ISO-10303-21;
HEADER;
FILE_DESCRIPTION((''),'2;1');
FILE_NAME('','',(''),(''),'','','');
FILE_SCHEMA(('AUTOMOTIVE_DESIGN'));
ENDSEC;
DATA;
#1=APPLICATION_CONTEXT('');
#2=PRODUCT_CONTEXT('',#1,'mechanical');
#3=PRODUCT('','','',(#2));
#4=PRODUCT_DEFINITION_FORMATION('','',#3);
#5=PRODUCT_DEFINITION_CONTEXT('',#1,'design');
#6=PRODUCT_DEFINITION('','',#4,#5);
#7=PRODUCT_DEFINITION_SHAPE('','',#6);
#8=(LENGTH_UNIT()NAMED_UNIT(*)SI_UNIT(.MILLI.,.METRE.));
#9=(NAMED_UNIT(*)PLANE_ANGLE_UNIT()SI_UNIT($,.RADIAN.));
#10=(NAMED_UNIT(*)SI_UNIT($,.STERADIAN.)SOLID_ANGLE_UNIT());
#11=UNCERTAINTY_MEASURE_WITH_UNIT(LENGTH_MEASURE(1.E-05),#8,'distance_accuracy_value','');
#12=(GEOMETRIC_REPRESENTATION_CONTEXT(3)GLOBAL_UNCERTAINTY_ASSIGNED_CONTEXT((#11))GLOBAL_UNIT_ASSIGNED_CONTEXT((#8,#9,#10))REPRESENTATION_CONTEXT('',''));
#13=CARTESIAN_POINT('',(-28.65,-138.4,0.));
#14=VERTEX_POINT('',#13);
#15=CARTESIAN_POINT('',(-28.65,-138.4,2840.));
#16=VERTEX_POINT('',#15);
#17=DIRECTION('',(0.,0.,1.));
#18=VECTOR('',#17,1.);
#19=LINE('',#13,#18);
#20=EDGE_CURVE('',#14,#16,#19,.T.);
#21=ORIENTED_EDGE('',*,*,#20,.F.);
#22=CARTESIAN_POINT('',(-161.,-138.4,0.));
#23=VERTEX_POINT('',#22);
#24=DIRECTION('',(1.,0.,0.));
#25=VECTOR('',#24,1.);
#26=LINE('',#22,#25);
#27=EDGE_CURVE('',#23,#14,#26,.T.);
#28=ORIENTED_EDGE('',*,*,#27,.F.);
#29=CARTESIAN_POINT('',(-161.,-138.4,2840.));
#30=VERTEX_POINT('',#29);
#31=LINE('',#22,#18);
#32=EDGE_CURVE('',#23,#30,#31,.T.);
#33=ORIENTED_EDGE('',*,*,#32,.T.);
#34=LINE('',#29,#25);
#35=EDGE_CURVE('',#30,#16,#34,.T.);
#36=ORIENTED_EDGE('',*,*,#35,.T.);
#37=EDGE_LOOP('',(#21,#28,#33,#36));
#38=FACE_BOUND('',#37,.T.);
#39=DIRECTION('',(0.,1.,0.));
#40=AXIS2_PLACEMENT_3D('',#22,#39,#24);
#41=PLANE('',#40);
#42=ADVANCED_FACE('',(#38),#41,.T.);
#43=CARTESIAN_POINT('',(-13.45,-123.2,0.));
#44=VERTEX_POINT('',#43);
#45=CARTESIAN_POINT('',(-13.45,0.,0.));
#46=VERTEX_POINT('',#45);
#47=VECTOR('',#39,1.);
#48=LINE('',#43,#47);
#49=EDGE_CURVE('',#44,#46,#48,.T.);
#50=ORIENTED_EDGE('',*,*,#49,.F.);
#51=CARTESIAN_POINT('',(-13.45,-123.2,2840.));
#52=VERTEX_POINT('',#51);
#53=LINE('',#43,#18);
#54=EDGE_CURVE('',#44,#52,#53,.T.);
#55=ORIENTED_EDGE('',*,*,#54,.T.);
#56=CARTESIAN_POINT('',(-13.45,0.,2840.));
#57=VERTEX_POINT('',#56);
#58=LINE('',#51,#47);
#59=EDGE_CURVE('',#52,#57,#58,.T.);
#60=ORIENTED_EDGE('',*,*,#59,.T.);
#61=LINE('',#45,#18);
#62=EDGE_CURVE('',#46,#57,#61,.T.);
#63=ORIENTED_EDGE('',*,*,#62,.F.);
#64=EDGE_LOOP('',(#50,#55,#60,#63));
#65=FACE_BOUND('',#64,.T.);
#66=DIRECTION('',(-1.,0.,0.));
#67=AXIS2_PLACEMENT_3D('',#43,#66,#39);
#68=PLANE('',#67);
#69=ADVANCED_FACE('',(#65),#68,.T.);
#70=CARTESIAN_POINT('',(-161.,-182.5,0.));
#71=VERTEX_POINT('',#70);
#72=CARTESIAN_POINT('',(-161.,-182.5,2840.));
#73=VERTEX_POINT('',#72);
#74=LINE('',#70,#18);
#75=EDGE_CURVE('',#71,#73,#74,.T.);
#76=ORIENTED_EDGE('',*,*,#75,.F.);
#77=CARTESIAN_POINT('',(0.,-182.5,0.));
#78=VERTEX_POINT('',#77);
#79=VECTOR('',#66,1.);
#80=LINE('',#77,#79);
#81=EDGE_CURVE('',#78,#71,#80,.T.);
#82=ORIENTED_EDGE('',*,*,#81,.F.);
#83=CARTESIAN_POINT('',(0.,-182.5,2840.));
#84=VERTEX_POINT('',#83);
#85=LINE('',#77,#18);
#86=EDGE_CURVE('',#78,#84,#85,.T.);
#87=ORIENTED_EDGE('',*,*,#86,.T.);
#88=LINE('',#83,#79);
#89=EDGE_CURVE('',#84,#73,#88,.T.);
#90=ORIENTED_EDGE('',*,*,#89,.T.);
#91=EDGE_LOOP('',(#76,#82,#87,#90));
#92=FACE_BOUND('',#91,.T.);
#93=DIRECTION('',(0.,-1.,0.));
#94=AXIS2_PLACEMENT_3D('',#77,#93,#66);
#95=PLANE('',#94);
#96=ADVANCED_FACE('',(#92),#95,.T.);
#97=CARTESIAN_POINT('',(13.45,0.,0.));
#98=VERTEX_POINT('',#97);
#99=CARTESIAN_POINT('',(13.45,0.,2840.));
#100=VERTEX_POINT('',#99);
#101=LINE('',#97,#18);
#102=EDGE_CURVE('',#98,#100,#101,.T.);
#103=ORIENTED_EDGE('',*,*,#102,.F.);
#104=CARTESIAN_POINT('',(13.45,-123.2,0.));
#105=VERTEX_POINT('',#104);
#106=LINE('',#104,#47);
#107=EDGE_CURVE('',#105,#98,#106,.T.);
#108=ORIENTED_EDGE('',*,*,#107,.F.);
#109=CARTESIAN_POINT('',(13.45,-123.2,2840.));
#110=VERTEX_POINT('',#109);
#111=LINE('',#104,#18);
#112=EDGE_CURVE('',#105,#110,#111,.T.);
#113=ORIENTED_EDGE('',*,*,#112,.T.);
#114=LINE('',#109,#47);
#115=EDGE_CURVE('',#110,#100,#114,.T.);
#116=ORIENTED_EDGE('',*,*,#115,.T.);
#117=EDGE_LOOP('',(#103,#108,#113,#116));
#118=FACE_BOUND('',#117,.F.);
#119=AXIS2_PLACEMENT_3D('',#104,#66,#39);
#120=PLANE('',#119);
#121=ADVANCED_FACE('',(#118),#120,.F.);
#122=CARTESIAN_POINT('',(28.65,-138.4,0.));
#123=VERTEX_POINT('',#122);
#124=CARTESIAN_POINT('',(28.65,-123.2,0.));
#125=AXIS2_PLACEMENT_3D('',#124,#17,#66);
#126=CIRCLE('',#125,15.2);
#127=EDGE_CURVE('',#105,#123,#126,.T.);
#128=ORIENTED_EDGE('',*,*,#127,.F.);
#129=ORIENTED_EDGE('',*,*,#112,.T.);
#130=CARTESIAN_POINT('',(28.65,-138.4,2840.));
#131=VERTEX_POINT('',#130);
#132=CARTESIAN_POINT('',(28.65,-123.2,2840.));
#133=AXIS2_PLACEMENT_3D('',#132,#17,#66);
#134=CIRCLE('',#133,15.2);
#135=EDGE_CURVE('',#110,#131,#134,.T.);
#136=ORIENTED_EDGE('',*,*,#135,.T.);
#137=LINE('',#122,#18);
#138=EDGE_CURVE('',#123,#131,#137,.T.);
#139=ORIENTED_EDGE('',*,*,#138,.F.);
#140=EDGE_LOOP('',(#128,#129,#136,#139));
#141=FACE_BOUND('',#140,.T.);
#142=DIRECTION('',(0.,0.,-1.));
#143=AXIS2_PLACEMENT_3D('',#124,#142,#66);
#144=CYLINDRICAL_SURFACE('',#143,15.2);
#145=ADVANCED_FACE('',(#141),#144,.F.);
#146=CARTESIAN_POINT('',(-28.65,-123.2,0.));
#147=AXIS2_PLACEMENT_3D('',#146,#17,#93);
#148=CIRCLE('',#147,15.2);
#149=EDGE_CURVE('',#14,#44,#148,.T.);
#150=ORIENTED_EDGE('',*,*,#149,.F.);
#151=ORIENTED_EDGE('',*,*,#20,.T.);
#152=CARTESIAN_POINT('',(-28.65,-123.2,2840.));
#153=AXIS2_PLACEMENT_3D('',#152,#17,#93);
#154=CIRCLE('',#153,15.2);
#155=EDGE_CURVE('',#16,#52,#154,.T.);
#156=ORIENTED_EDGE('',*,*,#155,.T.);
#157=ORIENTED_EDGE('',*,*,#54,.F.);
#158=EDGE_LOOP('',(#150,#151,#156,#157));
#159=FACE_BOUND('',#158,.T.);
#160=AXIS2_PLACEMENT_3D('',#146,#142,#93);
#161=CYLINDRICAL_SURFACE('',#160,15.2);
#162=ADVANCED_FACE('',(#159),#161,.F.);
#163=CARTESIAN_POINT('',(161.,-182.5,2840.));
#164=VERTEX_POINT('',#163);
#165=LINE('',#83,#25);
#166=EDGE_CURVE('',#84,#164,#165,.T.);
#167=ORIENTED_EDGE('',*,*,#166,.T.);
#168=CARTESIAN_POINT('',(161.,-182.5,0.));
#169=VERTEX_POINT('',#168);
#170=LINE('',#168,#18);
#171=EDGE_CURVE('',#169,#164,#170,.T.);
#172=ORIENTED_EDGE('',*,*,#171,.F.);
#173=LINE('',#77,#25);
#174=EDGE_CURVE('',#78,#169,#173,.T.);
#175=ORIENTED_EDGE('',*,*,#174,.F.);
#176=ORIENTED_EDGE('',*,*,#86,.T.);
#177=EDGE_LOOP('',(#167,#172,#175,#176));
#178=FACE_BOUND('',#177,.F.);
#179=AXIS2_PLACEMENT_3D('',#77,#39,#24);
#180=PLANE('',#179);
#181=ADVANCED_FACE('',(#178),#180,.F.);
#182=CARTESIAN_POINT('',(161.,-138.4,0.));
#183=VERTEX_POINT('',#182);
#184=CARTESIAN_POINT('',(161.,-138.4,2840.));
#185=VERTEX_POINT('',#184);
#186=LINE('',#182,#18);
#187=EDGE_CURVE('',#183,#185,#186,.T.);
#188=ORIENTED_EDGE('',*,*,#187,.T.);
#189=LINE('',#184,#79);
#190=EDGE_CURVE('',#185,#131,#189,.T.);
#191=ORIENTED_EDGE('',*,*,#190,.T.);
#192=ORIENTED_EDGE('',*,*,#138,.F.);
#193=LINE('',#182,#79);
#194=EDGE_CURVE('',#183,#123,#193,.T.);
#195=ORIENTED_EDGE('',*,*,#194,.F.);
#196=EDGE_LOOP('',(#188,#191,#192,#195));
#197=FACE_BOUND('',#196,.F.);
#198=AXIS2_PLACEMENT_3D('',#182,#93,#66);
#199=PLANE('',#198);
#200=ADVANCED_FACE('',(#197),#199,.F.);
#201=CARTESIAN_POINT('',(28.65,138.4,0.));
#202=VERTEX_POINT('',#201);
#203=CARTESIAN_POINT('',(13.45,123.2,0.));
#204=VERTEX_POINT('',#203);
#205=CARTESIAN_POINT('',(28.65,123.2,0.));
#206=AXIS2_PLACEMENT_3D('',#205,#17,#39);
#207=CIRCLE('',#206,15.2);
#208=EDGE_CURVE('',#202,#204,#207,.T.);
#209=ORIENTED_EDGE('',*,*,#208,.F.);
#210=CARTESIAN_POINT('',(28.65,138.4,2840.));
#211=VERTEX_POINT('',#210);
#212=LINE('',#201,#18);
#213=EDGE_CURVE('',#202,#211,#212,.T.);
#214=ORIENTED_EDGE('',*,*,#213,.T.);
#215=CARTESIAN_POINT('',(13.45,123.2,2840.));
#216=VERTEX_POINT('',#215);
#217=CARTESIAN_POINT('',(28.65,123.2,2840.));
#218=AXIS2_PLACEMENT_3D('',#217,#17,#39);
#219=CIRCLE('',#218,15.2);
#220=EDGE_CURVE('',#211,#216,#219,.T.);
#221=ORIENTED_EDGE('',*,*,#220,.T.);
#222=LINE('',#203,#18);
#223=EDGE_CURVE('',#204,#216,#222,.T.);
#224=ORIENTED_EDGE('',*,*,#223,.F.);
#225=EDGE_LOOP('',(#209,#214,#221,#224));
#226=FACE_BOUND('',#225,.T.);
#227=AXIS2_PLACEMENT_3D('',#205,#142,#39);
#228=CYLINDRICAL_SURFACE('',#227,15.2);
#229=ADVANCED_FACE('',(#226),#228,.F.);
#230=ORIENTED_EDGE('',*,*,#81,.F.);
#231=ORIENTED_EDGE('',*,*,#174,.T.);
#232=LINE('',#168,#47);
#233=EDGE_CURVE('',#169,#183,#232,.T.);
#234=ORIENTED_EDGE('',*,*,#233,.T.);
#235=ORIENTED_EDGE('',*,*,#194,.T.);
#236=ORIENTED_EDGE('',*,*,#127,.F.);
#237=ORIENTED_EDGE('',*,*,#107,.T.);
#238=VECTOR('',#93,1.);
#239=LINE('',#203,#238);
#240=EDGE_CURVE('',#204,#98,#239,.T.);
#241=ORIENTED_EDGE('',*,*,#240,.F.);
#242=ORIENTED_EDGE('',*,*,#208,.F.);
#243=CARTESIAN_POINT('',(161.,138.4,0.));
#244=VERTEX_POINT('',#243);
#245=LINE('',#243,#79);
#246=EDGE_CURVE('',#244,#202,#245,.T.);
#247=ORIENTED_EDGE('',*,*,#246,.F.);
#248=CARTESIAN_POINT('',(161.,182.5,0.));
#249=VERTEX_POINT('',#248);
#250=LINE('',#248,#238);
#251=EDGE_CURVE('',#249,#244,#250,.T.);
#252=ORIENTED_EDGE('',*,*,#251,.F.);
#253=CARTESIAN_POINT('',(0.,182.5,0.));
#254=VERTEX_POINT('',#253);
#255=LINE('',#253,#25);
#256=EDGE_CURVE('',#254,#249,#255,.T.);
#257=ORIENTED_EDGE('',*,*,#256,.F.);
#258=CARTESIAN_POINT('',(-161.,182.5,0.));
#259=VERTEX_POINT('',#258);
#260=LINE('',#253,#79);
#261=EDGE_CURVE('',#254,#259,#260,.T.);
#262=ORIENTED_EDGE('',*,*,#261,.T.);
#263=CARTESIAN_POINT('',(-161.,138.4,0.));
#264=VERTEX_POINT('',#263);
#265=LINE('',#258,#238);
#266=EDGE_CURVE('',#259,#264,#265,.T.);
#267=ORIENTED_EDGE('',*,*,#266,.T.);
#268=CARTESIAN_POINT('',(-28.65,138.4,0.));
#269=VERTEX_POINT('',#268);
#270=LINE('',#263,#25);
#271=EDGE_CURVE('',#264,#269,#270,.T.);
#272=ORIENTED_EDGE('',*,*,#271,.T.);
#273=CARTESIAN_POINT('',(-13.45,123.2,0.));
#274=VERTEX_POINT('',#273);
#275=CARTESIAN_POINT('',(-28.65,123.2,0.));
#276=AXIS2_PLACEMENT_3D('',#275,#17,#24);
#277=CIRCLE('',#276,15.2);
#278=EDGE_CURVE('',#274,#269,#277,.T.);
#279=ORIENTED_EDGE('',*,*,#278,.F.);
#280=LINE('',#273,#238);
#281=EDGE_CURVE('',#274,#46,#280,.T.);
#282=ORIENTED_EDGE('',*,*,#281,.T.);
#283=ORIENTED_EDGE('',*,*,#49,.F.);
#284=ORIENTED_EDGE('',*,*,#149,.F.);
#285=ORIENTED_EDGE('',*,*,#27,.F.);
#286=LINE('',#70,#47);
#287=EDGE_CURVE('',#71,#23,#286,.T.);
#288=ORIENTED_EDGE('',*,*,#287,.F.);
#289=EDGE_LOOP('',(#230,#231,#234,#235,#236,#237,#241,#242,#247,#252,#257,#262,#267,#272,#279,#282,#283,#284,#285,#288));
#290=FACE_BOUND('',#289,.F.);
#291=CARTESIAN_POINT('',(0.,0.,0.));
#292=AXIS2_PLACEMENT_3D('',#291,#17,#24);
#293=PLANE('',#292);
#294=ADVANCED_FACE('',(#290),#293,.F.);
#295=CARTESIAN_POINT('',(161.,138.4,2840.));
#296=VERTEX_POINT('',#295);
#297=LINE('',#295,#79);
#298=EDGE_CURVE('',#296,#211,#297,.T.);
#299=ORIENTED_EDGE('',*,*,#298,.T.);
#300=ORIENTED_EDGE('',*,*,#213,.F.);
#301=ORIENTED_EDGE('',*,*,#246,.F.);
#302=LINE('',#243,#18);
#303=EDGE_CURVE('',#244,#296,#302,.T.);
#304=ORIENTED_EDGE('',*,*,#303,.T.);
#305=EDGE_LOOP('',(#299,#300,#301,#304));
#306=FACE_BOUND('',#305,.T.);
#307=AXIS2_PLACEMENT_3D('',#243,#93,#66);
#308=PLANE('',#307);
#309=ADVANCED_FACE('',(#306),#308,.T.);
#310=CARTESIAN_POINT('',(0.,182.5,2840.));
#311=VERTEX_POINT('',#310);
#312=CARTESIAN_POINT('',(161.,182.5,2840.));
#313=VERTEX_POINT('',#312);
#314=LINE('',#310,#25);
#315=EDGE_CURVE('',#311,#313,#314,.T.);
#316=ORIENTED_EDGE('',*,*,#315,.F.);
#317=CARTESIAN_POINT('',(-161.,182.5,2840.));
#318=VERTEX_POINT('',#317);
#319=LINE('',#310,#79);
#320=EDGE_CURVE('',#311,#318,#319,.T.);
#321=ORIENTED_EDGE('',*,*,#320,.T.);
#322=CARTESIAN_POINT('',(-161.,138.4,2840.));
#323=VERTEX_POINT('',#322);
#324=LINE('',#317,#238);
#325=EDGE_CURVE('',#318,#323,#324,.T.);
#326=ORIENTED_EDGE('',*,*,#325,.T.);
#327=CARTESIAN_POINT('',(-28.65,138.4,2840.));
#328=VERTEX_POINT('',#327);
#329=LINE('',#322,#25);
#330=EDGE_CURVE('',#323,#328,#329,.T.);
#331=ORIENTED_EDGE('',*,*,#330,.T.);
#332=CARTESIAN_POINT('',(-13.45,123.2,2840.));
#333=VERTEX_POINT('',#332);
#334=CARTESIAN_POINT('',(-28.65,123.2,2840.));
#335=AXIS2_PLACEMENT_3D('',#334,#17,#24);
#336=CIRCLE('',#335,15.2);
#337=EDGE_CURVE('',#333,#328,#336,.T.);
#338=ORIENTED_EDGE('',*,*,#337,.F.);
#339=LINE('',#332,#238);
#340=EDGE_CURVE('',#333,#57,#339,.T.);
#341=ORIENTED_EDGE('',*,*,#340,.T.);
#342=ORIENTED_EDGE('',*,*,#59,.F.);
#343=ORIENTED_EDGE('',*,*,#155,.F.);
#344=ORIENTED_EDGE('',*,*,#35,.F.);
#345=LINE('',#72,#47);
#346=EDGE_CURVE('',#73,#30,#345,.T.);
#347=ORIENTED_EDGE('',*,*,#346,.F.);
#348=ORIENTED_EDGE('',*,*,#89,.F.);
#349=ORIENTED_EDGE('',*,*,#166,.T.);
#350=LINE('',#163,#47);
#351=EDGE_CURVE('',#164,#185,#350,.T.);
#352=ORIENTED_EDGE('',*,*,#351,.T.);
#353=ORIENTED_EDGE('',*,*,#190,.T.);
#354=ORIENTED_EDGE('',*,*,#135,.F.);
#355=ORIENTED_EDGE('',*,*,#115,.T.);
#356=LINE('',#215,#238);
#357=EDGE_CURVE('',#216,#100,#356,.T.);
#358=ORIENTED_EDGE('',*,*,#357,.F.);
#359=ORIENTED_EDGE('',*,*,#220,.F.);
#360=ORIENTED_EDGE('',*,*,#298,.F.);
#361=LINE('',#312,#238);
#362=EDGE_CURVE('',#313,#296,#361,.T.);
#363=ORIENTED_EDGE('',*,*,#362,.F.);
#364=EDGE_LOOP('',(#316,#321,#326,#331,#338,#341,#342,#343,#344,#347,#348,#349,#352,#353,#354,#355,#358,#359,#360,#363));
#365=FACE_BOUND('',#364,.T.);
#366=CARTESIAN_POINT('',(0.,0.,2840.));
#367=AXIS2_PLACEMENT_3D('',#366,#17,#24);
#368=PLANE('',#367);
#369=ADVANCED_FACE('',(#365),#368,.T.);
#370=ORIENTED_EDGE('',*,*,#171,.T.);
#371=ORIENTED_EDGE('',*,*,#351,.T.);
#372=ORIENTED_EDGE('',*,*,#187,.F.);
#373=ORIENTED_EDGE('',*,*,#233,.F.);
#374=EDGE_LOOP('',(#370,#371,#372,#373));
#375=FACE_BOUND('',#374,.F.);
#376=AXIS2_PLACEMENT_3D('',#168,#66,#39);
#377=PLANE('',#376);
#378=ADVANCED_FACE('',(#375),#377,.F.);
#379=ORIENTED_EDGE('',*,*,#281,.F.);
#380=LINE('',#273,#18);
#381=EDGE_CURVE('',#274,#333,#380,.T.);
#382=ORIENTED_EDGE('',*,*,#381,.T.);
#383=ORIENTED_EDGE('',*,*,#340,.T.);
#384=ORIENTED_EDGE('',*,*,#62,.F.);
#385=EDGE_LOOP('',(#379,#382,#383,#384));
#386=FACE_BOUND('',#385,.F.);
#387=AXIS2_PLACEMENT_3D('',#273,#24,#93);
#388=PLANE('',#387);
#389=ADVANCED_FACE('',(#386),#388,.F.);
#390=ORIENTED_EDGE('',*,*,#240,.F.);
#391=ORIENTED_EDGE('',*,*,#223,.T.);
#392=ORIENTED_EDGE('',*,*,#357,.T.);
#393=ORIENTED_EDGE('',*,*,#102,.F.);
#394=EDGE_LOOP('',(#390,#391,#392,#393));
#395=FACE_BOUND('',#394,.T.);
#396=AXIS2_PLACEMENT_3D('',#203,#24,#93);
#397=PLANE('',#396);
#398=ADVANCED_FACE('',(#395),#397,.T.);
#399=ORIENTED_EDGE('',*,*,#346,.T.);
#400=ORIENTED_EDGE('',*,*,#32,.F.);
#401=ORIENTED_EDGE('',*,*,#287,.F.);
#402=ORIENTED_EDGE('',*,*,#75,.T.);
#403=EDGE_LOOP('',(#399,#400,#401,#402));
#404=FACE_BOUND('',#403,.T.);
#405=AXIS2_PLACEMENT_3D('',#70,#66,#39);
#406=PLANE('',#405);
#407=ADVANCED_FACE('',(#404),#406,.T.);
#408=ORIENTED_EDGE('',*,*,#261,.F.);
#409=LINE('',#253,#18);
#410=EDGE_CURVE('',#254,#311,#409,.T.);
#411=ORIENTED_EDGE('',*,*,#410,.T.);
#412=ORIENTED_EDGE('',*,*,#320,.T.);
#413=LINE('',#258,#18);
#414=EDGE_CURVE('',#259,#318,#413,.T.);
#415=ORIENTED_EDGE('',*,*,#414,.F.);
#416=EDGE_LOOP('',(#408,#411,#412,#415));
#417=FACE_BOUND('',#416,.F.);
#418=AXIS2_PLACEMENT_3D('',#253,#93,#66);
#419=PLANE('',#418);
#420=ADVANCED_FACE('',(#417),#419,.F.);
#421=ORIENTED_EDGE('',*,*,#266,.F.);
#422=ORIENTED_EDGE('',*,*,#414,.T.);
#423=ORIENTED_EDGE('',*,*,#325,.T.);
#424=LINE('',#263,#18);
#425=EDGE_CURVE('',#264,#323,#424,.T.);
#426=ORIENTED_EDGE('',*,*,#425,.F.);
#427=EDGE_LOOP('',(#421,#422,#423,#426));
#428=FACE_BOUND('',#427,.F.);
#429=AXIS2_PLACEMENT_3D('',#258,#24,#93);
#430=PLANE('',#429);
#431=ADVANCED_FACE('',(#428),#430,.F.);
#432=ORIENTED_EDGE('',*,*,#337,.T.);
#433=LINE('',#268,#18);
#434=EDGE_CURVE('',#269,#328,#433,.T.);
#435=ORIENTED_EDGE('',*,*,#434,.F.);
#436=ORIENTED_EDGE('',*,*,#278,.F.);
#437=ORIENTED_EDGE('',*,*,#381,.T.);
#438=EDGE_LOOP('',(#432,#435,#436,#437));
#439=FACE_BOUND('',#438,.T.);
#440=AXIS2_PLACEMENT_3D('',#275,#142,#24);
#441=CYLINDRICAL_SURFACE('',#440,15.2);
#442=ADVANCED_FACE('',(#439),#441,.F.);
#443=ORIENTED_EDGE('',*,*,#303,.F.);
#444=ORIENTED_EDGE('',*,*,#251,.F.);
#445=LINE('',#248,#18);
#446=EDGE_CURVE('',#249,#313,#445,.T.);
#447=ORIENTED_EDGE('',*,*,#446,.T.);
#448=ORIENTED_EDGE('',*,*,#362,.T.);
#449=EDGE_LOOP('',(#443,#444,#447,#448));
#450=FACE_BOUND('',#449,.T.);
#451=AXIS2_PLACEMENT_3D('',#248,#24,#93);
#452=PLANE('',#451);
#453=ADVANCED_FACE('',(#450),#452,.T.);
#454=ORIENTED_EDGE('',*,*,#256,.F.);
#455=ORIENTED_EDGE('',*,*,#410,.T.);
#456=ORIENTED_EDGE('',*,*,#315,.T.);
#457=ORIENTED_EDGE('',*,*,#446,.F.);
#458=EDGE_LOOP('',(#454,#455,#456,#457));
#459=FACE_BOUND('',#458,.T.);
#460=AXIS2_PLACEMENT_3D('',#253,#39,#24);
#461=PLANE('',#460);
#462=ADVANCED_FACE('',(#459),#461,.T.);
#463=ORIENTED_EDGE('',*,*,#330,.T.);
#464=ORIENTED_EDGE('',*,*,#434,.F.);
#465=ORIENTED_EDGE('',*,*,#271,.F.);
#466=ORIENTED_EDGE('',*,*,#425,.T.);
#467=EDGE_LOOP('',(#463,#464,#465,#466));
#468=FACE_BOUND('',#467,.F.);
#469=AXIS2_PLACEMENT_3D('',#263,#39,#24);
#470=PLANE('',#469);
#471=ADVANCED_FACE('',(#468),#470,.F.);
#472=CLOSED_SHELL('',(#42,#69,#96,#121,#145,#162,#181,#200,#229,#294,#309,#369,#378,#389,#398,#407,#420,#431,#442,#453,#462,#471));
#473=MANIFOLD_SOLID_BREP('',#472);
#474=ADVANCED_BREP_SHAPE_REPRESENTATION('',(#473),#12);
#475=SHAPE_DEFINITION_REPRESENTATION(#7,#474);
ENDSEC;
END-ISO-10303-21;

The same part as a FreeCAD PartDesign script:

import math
import FreeCAD as App
import Part
import Sketcher

V = App.Vector
Q = App.Units.Quantity

doc = App.newDocument("Part")
body = doc.addObject("PartDesign::Body", "Body")

# Sketch on XY plane
sketch1 = body.newObject("Sketcher::SketchObject", "Sketch")
sketch1.AttachmentSupport = (doc.getObject("XY_Plane"), [""])
sketch1.MapMode = "FlatFace"
sketch1.addGeometry([
    Part.LineSegment(V(-161, -138, 0), V(-161, -182, 0)),  # 0
    Part.LineSegment(V(-161, -182, 0), V(161, -182, 0)),  # 1
    Part.LineSegment(V(161, -182, 0), V(161, -138, 0)),  # 2
    Part.LineSegment(V(161, -138, 0), V(29, -138, 0)),  # 3
    Part.ArcOfCircle(Part.Circle(V(29, -123, 0), V(0, 0, 1), 15), math.radians(180), math.radians(270)),  # 4
    Part.LineSegment(V(13, -123, 0), V(13, 123, 0)),  # 5
    Part.ArcOfCircle(Part.Circle(V(29, 123, 0), V(0, 0, 1), 15), math.radians(90), math.radians(180)),  # 6
    Part.LineSegment(V(29, 138, 0), V(161, 138, 0)),  # 7
    Part.LineSegment(V(161, 138, 0), V(161, 182, 0)),  # 8
    Part.LineSegment(V(161, 182, 0), V(-161, 182, 0)),  # 9
    Part.LineSegment(V(-161, 182, 0), V(-161, 138, 0)),  # 10
    Part.LineSegment(V(-161, 138, 0), V(-29, 138, 0)),  # 11
    Part.ArcOfCircle(Part.Circle(V(-29, 123, 0), V(0, 0, 1), 15), math.radians(0), math.radians(90)),  # 12
    Part.LineSegment(V(-13, 123, 0), V(-13, -123, 0)),  # 13
    Part.ArcOfCircle(Part.Circle(V(-29, -123, 0), V(0, 0, 1), 15), math.radians(-90), math.radians(0)),  # 14
    Part.LineSegment(V(-29, -138, 0), V(-161, -138, 0)),  # 15
], False)
sketch1.addConstraint([
    Sketcher.Constraint("Coincident", 0, 2, 1, 1),
    Sketcher.Constraint("Coincident", 1, 2, 2, 1),
    Sketcher.Constraint("Coincident", 2, 2, 3, 1),
    Sketcher.Constraint("Tangent", 3, 2, 4, 2),
    Sketcher.Constraint("Tangent", 4, 1, 5, 1),
    Sketcher.Constraint("Tangent", 5, 2, 6, 2),
    Sketcher.Constraint("Tangent", 6, 1, 7, 1),
    Sketcher.Constraint("Coincident", 7, 2, 8, 1),
    Sketcher.Constraint("Coincident", 8, 2, 9, 1),
    Sketcher.Constraint("Coincident", 9, 2, 10, 1),
    Sketcher.Constraint("Coincident", 10, 2, 11, 1),
    Sketcher.Constraint("Tangent", 11, 2, 12, 2),
    Sketcher.Constraint("Tangent", 12, 1, 13, 1),
    Sketcher.Constraint("Tangent", 13, 2, 14, 2),
    Sketcher.Constraint("Tangent", 14, 1, 15, 1),
    Sketcher.Constraint("Coincident", 15, 2, 0, 1),
    Sketcher.Constraint("Vertical", 0),
    Sketcher.Constraint("Horizontal", 1),
    Sketcher.Constraint("Vertical", 2),
    Sketcher.Constraint("Horizontal", 3),
    Sketcher.Constraint("Vertical", 5),
    Sketcher.Constraint("Horizontal", 7),
    Sketcher.Constraint("Vertical", 8),
    Sketcher.Constraint("Horizontal", 9),
    Sketcher.Constraint("Vertical", 10),
    Sketcher.Constraint("Horizontal", 11),
    Sketcher.Constraint("Vertical", 13),
    Sketcher.Constraint("Horizontal", 15),
    Sketcher.Constraint("Equal", 4, 6),
    Sketcher.Constraint("Equal", 6, 12),
    Sketcher.Constraint("Equal", 12, 14),
    Sketcher.Constraint("Symmetric", 4, 3, 12, 3, -1, 1),
    Sketcher.Constraint("Symmetric", 0, 2, 8, 2, -1, 1),
    Sketcher.Constraint("Symmetric", 7, 2, 10, 2, -2),
    Sketcher.Constraint("Symmetric", 2, 2, 15, 2, -2),
    Sketcher.Constraint("Radius", 4, Q("15.2 mm")),
    Sketcher.Constraint("DistanceY", 0, 2, 0, 1, Q("44.1 mm")),
    Sketcher.Constraint("DistanceX", 0, 2, -1, 1, Q("161 mm")),
    Sketcher.Constraint("DistanceY", 0, 2, -1, 1, Q("182.5 mm")),
    Sketcher.Constraint("DistanceX", -1, 1, 4, 1, Q("13.45 mm")),
])
pad1 = body.newObject("PartDesign::Pad", "Pad")
pad1.Profile = sketch1
pad1.Length = 2840

doc.recompute()
